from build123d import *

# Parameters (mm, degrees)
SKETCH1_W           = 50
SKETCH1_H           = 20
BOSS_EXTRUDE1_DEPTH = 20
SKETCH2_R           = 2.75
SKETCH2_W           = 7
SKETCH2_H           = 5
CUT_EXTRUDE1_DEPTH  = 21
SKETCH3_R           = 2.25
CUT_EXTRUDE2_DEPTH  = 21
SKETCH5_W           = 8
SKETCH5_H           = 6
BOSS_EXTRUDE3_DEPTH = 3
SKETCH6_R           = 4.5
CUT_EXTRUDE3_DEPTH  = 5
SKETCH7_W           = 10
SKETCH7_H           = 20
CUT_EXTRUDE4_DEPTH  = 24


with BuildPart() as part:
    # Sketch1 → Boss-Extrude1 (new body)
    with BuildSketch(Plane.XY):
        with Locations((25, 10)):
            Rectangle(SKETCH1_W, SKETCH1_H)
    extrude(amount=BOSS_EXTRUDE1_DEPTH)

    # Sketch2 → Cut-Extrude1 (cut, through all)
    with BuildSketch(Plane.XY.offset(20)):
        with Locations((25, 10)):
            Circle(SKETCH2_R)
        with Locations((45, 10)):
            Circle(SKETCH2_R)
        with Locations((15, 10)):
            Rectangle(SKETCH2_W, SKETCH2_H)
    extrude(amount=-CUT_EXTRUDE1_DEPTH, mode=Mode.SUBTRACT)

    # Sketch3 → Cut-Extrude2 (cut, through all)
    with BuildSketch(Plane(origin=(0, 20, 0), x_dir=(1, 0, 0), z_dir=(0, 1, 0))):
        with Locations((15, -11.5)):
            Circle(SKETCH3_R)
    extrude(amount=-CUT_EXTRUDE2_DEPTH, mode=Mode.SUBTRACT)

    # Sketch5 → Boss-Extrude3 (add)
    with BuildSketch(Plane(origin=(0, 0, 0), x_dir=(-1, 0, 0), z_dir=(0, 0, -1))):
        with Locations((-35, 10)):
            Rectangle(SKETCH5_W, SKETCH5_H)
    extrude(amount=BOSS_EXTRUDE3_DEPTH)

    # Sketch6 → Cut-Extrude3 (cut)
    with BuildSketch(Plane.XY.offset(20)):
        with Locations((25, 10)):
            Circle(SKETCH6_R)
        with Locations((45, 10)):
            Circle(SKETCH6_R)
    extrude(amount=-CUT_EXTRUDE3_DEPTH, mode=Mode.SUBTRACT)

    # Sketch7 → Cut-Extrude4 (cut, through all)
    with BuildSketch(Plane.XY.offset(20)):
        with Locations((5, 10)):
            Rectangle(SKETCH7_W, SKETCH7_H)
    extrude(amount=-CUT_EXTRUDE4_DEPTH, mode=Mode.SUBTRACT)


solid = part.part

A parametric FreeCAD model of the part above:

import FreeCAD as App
import Part
import Sketcher
Q = App.Units.Quantity

doc = App.newDocument("Part")
params = doc.addObject("Spreadsheet::Sheet", "Params")
for row, (alias, value) in enumerate([
    ("sketch1_width", "50 mm"),
    ("sketch1_height", "20 mm"),
    ("pad1_length", "20 mm"),
    ("sketch2_diameter", "5.5 mm"),
    ("sketch2_width", "7 mm"),
    ("sketch2_height", "5 mm"),
    ("sketch3_diameter", "4.5 mm"),
    ("sketch4_width", "8 mm"),
    ("sketch4_height", "6 mm"),
    ("pad2_length", "3 mm"),
    ("sketch5_diameter", "9 mm"),
    ("pocket3_length", "5 mm"),
    ("sketch6_width", "10 mm"),
    ("sketch6_height", "20 mm"),
], start=1):
    params.set(f"A{row}", alias)
    params.set(f"B{row}", "=" + value)
    params.setAlias(f"B{row}", alias)

body = doc.addObject("PartDesign::Body", "Body")

# Sketch on XY plane
sketch1 = body.newObject("Sketcher::SketchObject", "Sketch")
sketch1.AttachmentSupport = (doc.getObject("XY_Plane"), [""])
sketch1.MapMode = "FlatFace"
sketch1.addGeometry([
    Part.LineSegment(App.Vector(0, 20, 0), App.Vector(0, 0, 0)),
    Part.LineSegment(App.Vector(0, 0, 0), App.Vector(50, 0, 0)),
    Part.LineSegment(App.Vector(50, 0, 0), App.Vector(50, 20, 0)),
    Part.LineSegment(App.Vector(50, 20, 0), App.Vector(0, 20, 0)),
], False)
sketch1.addConstraint([
    Sketcher.Constraint("Coincident", 0, 2, 1, 1),
    Sketcher.Constraint("Coincident", 1, 2, 2, 1),
    Sketcher.Constraint("Coincident", 2, 2, 3, 1),
    Sketcher.Constraint("Coincident", 3, 2, 0, 1),
    Sketcher.Constraint("Vertical", 0),
    Sketcher.Constraint("Horizontal", 1),
    Sketcher.Constraint("Vertical", 2),
    Sketcher.Constraint("Horizontal", 3),
    Sketcher.Constraint("Coincident", 0, 2, -1, 1),
    Sketcher.Constraint("DistanceX", 1, 1, 1, 2, Q("50 mm")),
    Sketcher.Constraint("DistanceY", 0, 2, 0, 1, Q("20 mm")),
])
sketch1.setExpression("Constraints[9]", "Params.sketch1_width")
sketch1.setExpression("Constraints[10]", "Params.sketch1_height")
pad1 = body.newObject("PartDesign::Pad", "Pad")
pad1.Profile = sketch1
pad1.setExpression("Length", "Params.pad1_length")

# Sketch on XY plane
sketch2 = body.newObject("Sketcher::SketchObject", "Sketch001")
sketch2.AttachmentSupport = (doc.getObject("XY_Plane"), [""])
sketch2.MapMode = "FlatFace"
sketch2.AttachmentOffset = App.Placement(App.Vector(0, 0, 20), App.Rotation())
sketch2.addGeometry([
    Part.Circle(App.Vector(25, 10, 0), App.Vector(0, 0, 1), 2.8),  # 0
    Part.Circle(App.Vector(45, 10, 0), App.Vector(0, 0, 1), 2.8),  # 1
    Part.LineSegment(App.Vector(11.5, 12.5, 0), App.Vector(11.5, 7.5, 0)),  # 2
    Part.LineSegment(App.Vector(11.5, 7.5, 0), App.Vector(18.5, 7.5, 0)),  # 3
    Part.LineSegment(App.Vector(18.5, 7.5, 0), App.Vector(18.5, 12.5, 0)),  # 4
    Part.LineSegment(App.Vector(18.5, 12.5, 0), App.Vector(11.5, 12.5, 0)),  # 5
], False)
sketch2.addConstraint([
    Sketcher.Constraint("Coincident", 2, 2, 3, 1),
    Sketcher.Constraint("Coincident", 3, 2, 4, 1),
    Sketcher.Constraint("Coincident", 4, 2, 5, 1),
    Sketcher.Constraint("Coincident", 5, 2, 2, 1),
    Sketcher.Constraint("Vertical", 2),
    Sketcher.Constraint("Horizontal", 3),
    Sketcher.Constraint("Vertical", 4),
    Sketcher.Constraint("Horizontal", 5),
    Sketcher.Constraint("Equal", 0, 1),
    Sketcher.Constraint("Horizontal", 0, 3, 1, 3),
    Sketcher.Constraint("Diameter", 0, Q("5.5 mm")),
    Sketcher.Constraint("DistanceX", 3, 1, 3, 2, Q("7 mm")),
    Sketcher.Constraint("DistanceY", 2, 2, 2, 1, Q("5 mm")),
    Sketcher.Constraint("DistanceX", -1, 1, 0, 3, Q("25 mm")),
    Sketcher.Constraint("DistanceY", -1, 1, 0, 3, Q("10 mm")),
    Sketcher.Constraint("DistanceX", -1, 1, 1, 3, Q("45 mm")),
    Sketcher.Constraint("DistanceX", -1, 1, 2, 2, Q("11.5 mm")),
    Sketcher.Constraint("DistanceY", -1, 1, 2, 2, Q("7.5 mm")),
])
sketch2.setExpression("Constraints[10]", "Params.sketch2_diameter")
sketch2.setExpression("Constraints[11]", "Params.sketch2_width")
sketch2.setExpression("Constraints[12]", "Params.sketch2_height")
pocket1 = body.newObject("PartDesign::Pocket", "Pocket")
pocket1.Profile = sketch2
pocket1.Type = "ThroughAll"

# Sketch on XZ plane
sketch3 = body.newObject("Sketcher::SketchObject", "Sketch002")
sketch3.AttachmentSupport = (doc.getObject("XZ_Plane"), [""])
sketch3.MapMode = "FlatFace"
sketch3.AttachmentOffset = App.Placement(App.Vector(0, 0, -20), App.Rotation())
sketch3.addGeometry(Part.Circle(App.Vector(15, 11.5, 0), App.Vector(0, 0, 1), 2.2), False)
sketch3.addConstraint([
    Sketcher.Constraint("Diameter", 0, Q("4.5 mm")),
    Sketcher.Constraint("DistanceX", -1, 1, 0, 3, Q("15 mm")),
    Sketcher.Constraint("DistanceY", -1, 1, 0, 3, Q("11.5 mm")),
])
sketch3.setExpression("Constraints[0]", "Params.sketch3_diameter")
pocket2 = body.newObject("PartDesign::Pocket", "Pocket001")
pocket2.Profile = sketch3
pocket2.Type = "ThroughAll"
pocket2.Reversed = True

# Sketch on XY plane
sketch4 = body.newObject("Sketcher::SketchObject", "Sketch003")
sketch4.AttachmentSupport = (doc.getObject("XY_Plane"), [""])
sketch4.MapMode = "FlatFace"
sketch4.addGeometry([
    Part.LineSegment(App.Vector(39, 13, 0), App.Vector(39, 7, 0)),
    Part.LineSegment(App.Vector(39, 7, 0), App.Vector(31, 7, 0)),
    Part.LineSegment(App.Vector(31, 7, 0), App.Vector(31, 13, 0)),
    Part.LineSegment(App.Vector(31, 13, 0), App.Vector(39, 13, 0)),
], False)
sketch4.addConstraint([
    Sketcher.Constraint("Coincident", 0, 2, 1, 1),
    Sketcher.Constraint("Coincident", 1, 2, 2, 1),
    Sketcher.Constraint("Coincident", 2, 2, 3, 1),
    Sketcher.Constraint("Coincident", 3, 2, 0, 1),
    Sketcher.Constraint("Vertical", 0),
    Sketcher.Constraint("Horizontal", 1),
    Sketcher.Constraint("Vertical", 2),
    Sketcher.Constraint("Horizontal", 3),
    Sketcher.Constraint("DistanceX", 1, 2, 1, 1, Q("8 mm")),
    Sketcher.Constraint("DistanceY", 0, 2, 0, 1, Q("6 mm")),
    Sketcher.Constraint("DistanceX", -1, 1, 0, 2, Q("39 mm")),
    Sketcher.Constraint("DistanceY", -1, 1, 0, 2, Q("7 mm")),
])
sketch4.setExpression("Constraints[8]", "Params.sketch4_width")
sketch4.setExpression("Constraints[9]", "Params.sketch4_height")
pad2 = body.newObject("PartDesign::Pad", "Pad001")
pad2.Profile = sketch4
pad2.setExpression("Length", "Params.pad2_length")
pad2.Reversed = True

# Sketch on XY plane
sketch5 = body.newObject("Sketcher::SketchObject", "Sketch004")
sketch5.AttachmentSupport = (doc.getObject("XY_Plane"), [""])
sketch5.MapMode = "FlatFace"
sketch5.AttachmentOffset = App.Placement(App.Vector(0, 0, 20), App.Rotation())
sketch5.addGeometry([
    Part.Circle(App.Vector(25, 10, 0), App.Vector(0, 0, 1), 4.5),
    Part.Circle(App.Vector(45, 10, 0), App.Vector(0, 0, 1), 4.5),
], False)
sketch5.addConstraint([
    Sketcher.Constraint("Equal", 0, 1),
    Sketcher.Constraint("Horizontal", 0, 3, 1, 3),
    Sketcher.Constraint("Diameter", 0, Q("9 mm")),
    Sketcher.Constraint("DistanceX", -1, 1, 0, 3, Q("25 mm")),
    Sketcher.Constraint("DistanceY", -1, 1, 0, 3, Q("10 mm")),
    Sketcher.Constraint("DistanceX", -1, 1, 1, 3, Q("45 mm")),
])
sketch5.setExpression("Constraints[2]", "Params.sketch5_diameter")
pocket3 = body.newObject("PartDesign::Pocket", "Pocket002")
pocket3.Profile = sketch5
pocket3.setExpression("Length", "Params.pocket3_length")

# Sketch on XY plane
sketch6 = body.newObject("Sketcher::SketchObject", "Sketch005")
sketch6.AttachmentSupport = (doc.getObject("XY_Plane"), [""])
sketch6.MapMode = "FlatFace"
sketch6.AttachmentOffset = App.Placement(App.Vector(0, 0, 20), App.Rotation())
sketch6.addGeometry([
    Part.LineSegment(App.Vector(0, 20, 0), App.Vector(0, 0, 0)),
    Part.LineSegment(App.Vector(0, 0, 0), App.Vector(10, 0, 0)),
    Part.LineSegment(App.Vector(10, 0, 0), App.Vector(10, 20, 0)),
    Part.LineSegment(App.Vector(10, 20, 0), App.Vector(0, 20, 0)),
], False)
sketch6.addConstraint([
    Sketcher.Constraint("Coincident", 0, 2, 1, 1),
    Sketcher.Constraint("Coincident", 1, 2, 2, 1),
    Sketcher.Constraint("Coincident", 2, 2, 3, 1),
    Sketcher.Constraint("Coincident", 3, 2, 0, 1),
    Sketcher.Constraint("Vertical", 0),
    Sketcher.Constraint("Horizontal", 1),
    Sketcher.Constraint("Vertical", 2),
    Sketcher.Constraint("Horizontal", 3),
    Sketcher.Constraint("Coincident", 0, 2, -1, 1),
    Sketcher.Constraint("DistanceX", 1, 1, 1, 2, Q("10 mm")),
    Sketcher.Constraint("DistanceY", 0, 2, 0, 1, Q("20 mm")),
])
sketch6.setExpression("Constraints[9]", "Params.sketch6_width")
sketch6.setExpression("Constraints[10]", "Params.sketch6_height")
pocket4 = body.newObject("PartDesign::Pocket", "Pocket003")
pocket4.Profile = sketch6
pocket4.Type = "ThroughAll"

doc.recompute()
